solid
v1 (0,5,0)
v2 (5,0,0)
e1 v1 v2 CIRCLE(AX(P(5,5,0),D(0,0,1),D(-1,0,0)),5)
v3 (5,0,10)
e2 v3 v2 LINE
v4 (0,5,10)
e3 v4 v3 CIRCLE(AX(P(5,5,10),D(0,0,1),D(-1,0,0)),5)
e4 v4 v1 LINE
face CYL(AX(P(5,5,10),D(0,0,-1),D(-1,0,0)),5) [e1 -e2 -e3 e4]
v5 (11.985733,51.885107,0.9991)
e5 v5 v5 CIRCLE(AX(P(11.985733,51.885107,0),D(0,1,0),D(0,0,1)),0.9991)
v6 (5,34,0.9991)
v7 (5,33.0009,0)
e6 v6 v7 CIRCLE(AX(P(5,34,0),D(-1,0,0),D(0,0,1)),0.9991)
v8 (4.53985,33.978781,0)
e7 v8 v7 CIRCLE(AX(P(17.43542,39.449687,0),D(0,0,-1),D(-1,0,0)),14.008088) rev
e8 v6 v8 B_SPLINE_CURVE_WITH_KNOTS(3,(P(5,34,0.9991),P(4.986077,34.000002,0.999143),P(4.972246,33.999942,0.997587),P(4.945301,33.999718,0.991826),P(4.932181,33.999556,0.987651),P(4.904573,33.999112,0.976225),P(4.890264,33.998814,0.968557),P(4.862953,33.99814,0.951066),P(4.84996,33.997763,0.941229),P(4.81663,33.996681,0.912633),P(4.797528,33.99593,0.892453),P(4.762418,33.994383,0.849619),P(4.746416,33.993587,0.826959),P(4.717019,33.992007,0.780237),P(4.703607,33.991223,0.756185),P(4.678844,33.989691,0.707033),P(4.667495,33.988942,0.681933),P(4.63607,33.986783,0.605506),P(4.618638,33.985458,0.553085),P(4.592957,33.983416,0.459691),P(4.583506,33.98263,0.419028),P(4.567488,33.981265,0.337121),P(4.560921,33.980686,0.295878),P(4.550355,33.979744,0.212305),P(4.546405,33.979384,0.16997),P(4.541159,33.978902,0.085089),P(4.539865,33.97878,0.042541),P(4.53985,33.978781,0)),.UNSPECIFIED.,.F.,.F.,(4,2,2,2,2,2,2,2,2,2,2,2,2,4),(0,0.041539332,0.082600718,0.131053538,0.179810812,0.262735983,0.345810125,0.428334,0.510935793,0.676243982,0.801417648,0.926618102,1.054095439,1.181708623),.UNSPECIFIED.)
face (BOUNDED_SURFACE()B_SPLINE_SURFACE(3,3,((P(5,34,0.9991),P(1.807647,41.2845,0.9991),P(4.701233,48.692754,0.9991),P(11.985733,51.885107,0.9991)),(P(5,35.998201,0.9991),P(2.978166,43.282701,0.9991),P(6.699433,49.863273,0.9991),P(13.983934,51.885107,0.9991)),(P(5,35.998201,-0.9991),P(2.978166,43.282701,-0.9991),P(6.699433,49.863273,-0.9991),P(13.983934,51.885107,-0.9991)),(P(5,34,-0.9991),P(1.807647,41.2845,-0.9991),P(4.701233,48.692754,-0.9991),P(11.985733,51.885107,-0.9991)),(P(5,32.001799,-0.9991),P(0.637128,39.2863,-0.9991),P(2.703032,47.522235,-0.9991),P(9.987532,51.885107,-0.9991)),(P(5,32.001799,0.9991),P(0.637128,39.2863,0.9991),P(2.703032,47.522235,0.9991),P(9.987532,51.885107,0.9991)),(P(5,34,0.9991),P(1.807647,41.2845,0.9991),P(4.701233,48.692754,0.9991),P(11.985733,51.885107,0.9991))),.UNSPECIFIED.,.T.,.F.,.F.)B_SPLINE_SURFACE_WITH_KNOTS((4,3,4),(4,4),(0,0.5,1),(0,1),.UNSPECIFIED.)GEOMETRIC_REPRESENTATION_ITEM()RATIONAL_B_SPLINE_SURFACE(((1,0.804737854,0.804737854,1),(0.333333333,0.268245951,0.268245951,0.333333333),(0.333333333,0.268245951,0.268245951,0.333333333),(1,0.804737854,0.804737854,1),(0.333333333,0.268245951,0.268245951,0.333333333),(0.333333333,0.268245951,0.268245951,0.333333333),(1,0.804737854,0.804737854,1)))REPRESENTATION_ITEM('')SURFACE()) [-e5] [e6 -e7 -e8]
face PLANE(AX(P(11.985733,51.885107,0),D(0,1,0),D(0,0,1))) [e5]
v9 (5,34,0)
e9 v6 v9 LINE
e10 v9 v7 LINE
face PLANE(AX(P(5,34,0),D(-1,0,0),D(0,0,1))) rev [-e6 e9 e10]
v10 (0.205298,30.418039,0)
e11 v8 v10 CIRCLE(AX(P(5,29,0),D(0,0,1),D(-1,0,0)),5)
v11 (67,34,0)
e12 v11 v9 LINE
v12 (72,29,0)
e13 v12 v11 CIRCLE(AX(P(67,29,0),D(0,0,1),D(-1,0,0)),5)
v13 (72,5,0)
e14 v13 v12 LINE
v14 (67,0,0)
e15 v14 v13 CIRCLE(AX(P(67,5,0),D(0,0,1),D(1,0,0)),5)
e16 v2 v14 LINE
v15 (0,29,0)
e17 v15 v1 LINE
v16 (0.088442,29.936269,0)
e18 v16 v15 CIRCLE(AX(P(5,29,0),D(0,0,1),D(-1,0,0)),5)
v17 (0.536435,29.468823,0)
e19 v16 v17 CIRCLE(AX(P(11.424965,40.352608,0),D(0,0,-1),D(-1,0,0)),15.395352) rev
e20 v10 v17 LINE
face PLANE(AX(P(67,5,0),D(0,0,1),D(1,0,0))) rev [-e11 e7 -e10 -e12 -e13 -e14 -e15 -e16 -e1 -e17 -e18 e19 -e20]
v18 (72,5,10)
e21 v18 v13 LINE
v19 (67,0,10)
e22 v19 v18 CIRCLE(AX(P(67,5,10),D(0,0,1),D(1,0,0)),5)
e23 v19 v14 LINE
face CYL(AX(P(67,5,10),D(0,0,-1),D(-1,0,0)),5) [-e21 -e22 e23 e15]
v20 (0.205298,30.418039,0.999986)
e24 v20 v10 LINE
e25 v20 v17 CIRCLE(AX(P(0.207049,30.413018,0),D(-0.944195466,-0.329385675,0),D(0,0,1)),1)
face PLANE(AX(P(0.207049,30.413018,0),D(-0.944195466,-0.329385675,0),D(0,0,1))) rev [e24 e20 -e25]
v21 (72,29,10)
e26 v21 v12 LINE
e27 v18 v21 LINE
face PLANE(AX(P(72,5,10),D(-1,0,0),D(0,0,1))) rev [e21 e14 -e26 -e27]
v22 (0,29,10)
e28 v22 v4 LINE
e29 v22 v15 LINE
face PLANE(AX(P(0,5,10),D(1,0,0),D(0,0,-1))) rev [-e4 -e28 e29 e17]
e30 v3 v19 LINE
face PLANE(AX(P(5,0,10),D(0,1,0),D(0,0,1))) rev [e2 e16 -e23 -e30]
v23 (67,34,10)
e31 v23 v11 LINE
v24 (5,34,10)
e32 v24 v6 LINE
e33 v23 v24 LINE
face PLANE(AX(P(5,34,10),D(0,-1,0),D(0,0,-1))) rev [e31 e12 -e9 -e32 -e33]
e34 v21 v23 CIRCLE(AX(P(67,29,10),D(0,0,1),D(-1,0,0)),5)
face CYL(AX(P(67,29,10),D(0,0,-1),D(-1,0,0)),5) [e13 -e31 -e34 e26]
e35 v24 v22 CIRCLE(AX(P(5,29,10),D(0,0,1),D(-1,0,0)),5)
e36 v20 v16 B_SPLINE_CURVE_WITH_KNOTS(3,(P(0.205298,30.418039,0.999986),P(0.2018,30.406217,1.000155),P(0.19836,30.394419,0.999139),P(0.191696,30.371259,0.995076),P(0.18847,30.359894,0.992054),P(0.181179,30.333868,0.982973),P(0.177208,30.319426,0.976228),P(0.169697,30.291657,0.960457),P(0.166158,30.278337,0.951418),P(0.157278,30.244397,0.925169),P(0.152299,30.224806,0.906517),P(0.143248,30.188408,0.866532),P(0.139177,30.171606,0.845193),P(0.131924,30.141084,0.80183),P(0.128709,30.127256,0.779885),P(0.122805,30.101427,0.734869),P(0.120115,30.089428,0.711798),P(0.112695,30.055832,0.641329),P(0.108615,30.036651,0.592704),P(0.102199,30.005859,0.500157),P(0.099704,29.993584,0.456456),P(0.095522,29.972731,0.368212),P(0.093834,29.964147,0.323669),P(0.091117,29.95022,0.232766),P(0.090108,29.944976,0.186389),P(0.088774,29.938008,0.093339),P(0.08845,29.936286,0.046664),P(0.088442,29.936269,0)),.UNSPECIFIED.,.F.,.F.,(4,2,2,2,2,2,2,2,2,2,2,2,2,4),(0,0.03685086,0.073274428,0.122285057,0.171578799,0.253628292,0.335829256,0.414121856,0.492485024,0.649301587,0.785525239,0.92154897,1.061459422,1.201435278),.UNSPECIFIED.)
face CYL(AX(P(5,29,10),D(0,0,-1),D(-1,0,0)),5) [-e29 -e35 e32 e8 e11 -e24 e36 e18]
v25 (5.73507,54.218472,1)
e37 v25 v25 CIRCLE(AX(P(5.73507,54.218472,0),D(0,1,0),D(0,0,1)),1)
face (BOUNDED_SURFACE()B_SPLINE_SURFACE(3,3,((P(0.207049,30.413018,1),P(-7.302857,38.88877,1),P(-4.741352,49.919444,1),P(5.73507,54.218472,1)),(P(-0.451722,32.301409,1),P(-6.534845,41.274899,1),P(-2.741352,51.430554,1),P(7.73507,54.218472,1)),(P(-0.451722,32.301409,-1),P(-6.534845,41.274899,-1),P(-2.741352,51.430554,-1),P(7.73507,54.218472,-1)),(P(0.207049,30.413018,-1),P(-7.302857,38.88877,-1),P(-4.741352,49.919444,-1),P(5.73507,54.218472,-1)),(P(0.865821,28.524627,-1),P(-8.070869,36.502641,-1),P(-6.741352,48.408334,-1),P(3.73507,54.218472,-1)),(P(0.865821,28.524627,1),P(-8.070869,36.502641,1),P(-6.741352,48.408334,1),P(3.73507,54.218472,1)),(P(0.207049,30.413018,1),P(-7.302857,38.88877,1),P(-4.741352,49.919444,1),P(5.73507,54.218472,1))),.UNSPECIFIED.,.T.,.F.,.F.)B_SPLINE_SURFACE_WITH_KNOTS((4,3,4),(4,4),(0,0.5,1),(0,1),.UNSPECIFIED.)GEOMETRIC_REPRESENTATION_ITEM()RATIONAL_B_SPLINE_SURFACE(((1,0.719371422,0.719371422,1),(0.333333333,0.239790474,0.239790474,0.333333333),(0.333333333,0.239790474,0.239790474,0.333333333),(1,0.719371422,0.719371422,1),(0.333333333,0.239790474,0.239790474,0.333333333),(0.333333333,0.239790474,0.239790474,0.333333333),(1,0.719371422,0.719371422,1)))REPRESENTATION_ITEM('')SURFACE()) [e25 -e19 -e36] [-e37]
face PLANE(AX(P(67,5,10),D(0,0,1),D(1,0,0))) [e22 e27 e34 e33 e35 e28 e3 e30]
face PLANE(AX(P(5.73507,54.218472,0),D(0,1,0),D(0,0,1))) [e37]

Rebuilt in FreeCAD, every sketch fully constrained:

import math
import FreeCAD as App
import Part
import Sketcher
from FreeCAD import Vector
Q = App.Units.Quantity

doc = App.newDocument("Part")
body = doc.addObject("PartDesign::Body", "Body")

sketch1 = doc.addObject("Sketcher::SketchObject", "Sketch")
body.addObject(sketch1)
sketch1.AttachmentSupport = (doc.XY_Plane, [""])
sketch1.MapMode = "FlatFace"
sketch1.addGeometry([
    Part.LineSegment(Vector(5, 0, 0), Vector(67, 0, 0)),
    Part.ArcOfCircle(Part.Circle(Vector(67, 5, 0), Vector(0, 0, 1), 5), math.radians(-90), math.radians(0)),
    Part.LineSegment(Vector(72, 5, 0), Vector(72, 29, 0)),
    Part.ArcOfCircle(Part.Circle(Vector(67, 29, 0), Vector(0, 0, 1), 5), math.radians(0), math.radians(90)),
    Part.LineSegment(Vector(67, 34, 0), Vector(5, 34, 0)),
    Part.ArcOfCircle(Part.Circle(Vector(5, 29, 0), Vector(0, 0, 1), 5), math.radians(90), math.radians(180)),
    Part.LineSegment(Vector(0, 29, 0), Vector(0, 5, 0)),
    Part.ArcOfCircle(Part.Circle(Vector(5, 5, 0), Vector(0, 0, 1), 5), math.radians(180), math.radians(270)),
], False)
sketch1.addConstraint([
    Sketcher.Constraint("Tangent", 0, 2, 1, 1),
    Sketcher.Constraint("Tangent", 1, 2, 2, 1),
    Sketcher.Constraint("Tangent", 2, 2, 3, 1),
    Sketcher.Constraint("Tangent", 3, 2, 4, 1),
    Sketcher.Constraint("Tangent", 4, 2, 5, 1),
    Sketcher.Constraint("Tangent", 5, 2, 6, 1),
    Sketcher.Constraint("Tangent", 6, 2, 7, 1),
    Sketcher.Constraint("Tangent", 7, 2, 0, 1),
    Sketcher.Constraint("Horizontal", 0),
    Sketcher.Constraint("Vertical", 2),
    Sketcher.Constraint("Horizontal", 4),
    Sketcher.Constraint("Vertical", 6),
    Sketcher.Constraint("Equal", 1, 3),
    Sketcher.Constraint("Equal", 3, 5),
    Sketcher.Constraint("Equal", 5, 7),
    Sketcher.Constraint("PointOnObject", 0, 2, -1),
    Sketcher.Constraint("PointOnObject", 5, 2, -2),
    Sketcher.Constraint("Radius", 1, Q("5 mm")),
    Sketcher.Constraint("DistanceX", 0, 1, 0, 2, Q("62 mm")),
    Sketcher.Constraint("DistanceY", 2, 1, 2, 2, Q("24 mm")),
])
pad1 = doc.addObject("PartDesign::Pad", "Pad")
body.addObject(pad1)
pad1.Profile = sketch1
pad1.Length = 10

sketch2 = doc.addObject("Sketcher::SketchObject", "Sketch001")
body.addObject(sketch2)
sketch2.AttachmentSupport = (doc.XZ_Plane, [""])
sketch2.MapMode = "FlatFace"
sketch2.AttachmentOffset = App.Placement(Vector(0, 0, -54.218472), App.Rotation())
sketch2.addGeometry(Part.Circle(Vector(5.7, 0, 0), Vector(0, 0, 1), 1), False)
sketch2.addConstraint([
    Sketcher.Constraint("PointOnObject", 0, 3, -1),
    Sketcher.Constraint("Diameter", 0, Q("2 mm")),
    Sketcher.Constraint("DistanceX", -1, 1, 0, 3, Q("5.73507 mm")),
])

sketch3 = doc.addObject("Sketcher::SketchObject", "Sketch002")
body.addObject(sketch3)
sketch3.AttachmentSupport = (doc.XY_Plane, [""])
sketch3.MapMode = "FlatFace"
sketch3.addGeometry(Part.ArcOfCircle(Part.Circle(Vector(11, 40, 0), Vector(0, 0, 1), 15), math.radians(112), math.radians(222)), False)
sketch3.addConstraint([
    Sketcher.Constraint("Radius", 0, Q("14.98588 mm")),
    Sketcher.Constraint("DistanceX", -1, 1, 0, 2, Q("0.205298 mm")),
    Sketcher.Constraint("DistanceY", -1, 1, 0, 3, Q("40.352608 mm")),
    Sketcher.Constraint("DistanceY", -1, 1, 0, 1, Q("54.218472 mm")),
    Sketcher.Constraint("DistanceY", -1, 1, 0, 2, Q("30.418039 mm")),
])
doc.recompute()

additivepipe = doc.addObject("PartDesign::AdditivePipe", "AdditivePipe")
body.addObject(additivepipe)
additivepipe.Profile = sketch2
additivepipe.Spine = (sketch3, ["Edge1"])

sketch4 = doc.addObject("Sketcher::SketchObject", "Sketch003")
body.addObject(sketch4)
sketch4.AttachmentSupport = (doc.XZ_Plane, [""])
sketch4.MapMode = "FlatFace"
sketch4.AttachmentOffset = App.Placement(Vector(0, 0, -51.885107), App.Rotation())
sketch4.addGeometry(Part.Circle(Vector(12, 0, 0), Vector(0, 0, 1), 1), False)
sketch4.addConstraint([
    Sketcher.Constraint("PointOnObject", 0, 3, -1),
    Sketcher.Constraint("Diameter", 0, Q("1.998201 mm")),
    Sketcher.Constraint("DistanceX", -1, 1, 0, 3, Q("11.985733 mm")),
])

sketch5 = doc.addObject("Sketcher::SketchObject", "Sketch004")
body.addObject(sketch5)
sketch5.AttachmentSupport = (doc.XY_Plane, [""])
sketch5.MapMode = "FlatFace"
sketch5.addGeometry(Part.ArcOfCircle(Part.Circle(Vector(17, 39, 0), Vector(0, 0, 1), 14), math.radians(114), math.radians(204)), False)
sketch5.addConstraint([
    Sketcher.Constraint("DistanceX", -1, 1, 0, 2, Q("5 mm")),
    Sketcher.Constraint("DistanceY", -1, 1, 0, 2, Q("34 mm")),
    Sketcher.Constraint("Radius", 0, Q("13.577141 mm")),
    Sketcher.Constraint("DistanceX", -1, 1, 0, 3, Q("17.43542 mm")),
    Sketcher.Constraint("DistanceY", 0, 3, 0, 1, Q("12.43542 mm")),
])
doc.recompute()

additivepipe2 = doc.addObject("PartDesign::AdditivePipe", "AdditivePipe001")
body.addObject(additivepipe2)
additivepipe2.Profile = sketch4
additivepipe2.Spine = (sketch5, ["Edge1"])

doc.recompute()
